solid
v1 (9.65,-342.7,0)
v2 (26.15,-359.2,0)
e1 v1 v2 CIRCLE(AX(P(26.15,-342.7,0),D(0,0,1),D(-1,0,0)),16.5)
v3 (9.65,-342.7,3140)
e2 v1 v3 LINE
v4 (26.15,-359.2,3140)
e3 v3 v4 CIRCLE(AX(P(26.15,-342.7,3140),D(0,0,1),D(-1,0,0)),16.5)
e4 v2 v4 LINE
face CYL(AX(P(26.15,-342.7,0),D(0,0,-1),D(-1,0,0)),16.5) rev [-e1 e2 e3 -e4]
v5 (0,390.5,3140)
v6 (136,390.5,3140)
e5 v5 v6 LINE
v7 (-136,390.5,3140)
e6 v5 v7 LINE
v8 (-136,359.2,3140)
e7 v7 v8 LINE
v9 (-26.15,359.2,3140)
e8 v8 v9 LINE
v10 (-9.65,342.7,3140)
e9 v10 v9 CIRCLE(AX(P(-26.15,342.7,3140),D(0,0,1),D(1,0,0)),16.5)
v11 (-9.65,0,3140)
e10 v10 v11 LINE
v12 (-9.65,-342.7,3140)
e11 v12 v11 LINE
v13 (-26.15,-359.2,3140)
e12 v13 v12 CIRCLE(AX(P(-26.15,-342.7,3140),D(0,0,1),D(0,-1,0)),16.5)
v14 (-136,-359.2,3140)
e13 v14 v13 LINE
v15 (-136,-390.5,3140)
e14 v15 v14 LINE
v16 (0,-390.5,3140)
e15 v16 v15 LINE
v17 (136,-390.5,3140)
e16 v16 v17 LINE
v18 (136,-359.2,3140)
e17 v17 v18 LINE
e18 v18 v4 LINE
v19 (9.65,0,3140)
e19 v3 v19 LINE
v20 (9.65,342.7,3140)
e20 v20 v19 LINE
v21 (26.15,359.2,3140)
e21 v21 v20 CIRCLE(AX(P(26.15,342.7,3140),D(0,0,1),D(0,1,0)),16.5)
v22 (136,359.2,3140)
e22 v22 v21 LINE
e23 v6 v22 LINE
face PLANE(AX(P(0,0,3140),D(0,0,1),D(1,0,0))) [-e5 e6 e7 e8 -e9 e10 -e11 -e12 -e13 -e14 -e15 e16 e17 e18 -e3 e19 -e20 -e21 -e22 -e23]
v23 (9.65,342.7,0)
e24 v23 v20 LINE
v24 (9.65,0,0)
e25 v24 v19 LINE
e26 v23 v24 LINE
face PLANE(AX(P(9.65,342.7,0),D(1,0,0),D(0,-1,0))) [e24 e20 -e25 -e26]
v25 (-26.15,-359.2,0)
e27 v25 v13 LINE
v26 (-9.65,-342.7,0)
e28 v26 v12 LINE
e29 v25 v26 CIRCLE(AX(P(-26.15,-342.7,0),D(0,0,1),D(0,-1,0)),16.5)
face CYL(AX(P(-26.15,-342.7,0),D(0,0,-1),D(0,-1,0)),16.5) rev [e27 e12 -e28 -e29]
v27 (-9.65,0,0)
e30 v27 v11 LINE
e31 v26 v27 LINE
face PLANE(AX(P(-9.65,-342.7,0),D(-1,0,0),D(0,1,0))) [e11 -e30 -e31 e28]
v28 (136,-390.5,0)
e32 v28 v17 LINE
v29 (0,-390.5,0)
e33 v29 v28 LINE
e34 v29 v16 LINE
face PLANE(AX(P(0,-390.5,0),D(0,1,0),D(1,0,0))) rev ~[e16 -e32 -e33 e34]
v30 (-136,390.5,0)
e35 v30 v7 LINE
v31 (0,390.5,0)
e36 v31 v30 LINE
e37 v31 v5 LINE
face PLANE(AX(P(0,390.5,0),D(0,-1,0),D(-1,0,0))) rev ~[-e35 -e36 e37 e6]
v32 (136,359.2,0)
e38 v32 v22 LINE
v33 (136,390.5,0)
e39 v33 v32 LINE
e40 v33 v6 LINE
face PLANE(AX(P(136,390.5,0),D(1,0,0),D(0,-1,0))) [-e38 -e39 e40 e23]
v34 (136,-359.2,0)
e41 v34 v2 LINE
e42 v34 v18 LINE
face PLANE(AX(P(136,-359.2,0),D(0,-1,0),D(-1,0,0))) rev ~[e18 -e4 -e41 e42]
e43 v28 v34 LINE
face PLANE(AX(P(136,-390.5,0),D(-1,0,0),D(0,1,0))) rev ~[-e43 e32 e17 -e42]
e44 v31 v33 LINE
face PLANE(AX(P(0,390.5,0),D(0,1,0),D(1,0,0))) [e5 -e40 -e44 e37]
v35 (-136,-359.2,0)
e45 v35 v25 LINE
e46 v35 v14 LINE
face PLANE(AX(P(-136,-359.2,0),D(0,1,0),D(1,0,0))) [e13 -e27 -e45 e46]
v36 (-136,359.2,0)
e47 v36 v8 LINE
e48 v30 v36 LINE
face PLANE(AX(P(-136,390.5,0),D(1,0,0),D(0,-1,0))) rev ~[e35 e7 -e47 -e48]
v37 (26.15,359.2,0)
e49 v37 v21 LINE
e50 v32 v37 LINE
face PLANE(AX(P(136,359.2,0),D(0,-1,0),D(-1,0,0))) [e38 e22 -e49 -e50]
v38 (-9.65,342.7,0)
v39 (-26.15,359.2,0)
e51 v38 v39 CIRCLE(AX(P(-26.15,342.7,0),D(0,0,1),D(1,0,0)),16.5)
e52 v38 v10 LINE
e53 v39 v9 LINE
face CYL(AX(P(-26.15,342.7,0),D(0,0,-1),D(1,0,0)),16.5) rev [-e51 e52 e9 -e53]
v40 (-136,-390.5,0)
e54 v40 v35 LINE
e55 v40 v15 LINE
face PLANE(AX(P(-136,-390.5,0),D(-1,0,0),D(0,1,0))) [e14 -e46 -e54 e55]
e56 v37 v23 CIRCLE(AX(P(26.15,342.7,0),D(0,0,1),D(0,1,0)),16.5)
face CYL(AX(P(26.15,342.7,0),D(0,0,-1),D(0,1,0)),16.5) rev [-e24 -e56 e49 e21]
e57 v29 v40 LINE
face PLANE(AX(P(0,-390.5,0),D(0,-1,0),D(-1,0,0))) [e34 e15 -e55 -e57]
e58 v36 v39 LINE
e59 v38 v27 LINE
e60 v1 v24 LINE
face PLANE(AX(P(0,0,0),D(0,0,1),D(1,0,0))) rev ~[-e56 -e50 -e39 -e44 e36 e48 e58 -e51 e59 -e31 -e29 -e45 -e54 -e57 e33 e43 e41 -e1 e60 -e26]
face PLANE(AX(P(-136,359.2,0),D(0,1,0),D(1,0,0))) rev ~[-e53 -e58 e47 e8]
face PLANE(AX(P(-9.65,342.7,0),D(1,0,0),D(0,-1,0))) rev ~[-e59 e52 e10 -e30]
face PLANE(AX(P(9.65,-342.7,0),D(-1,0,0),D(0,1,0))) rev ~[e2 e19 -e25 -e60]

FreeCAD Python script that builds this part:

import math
import FreeCAD as App
import Part
import Sketcher

V = App.Vector

doc = App.newDocument("Part")
body = doc.addObject("PartDesign::Body", "Body")

# Sketch on XY plane
sketch1 = body.newObject("Sketcher::SketchObject", "Sketch")
sketch1.AttachmentSupport = (doc.getObject("XY_Plane"), [""])
sketch1.MapMode = "FlatFace"
sketch1.addGeometry([
    Part.LineSegment(V(-136, -359.2, 0), V(-136, -390.5, 0)),  # 0
    Part.LineSegment(V(-136, -390.5, 0), V(136, -390.5, 0)),  # 1
    Part.LineSegment(V(136, -390.5, 0), V(136, -359.2, 0)),  # 2
    Part.LineSegment(V(136, -359.2, 0), V(26.15, -359.2, 0)),  # 3
    Part.ArcOfCircle(Part.Circle(V(26.15, -342.7, 0), V(0, 0, 1), 16.5), math.radians(180), math.radians(270)),  # 4
    Part.LineSegment(V(9.65, -342.7, 0), V(9.65, 342.7, 0)),  # 5
    Part.ArcOfCircle(Part.Circle(V(26.15, 342.7, 0), V(0, 0, 1), 16.5), math.radians(90), math.radians(180)),  # 6
    Part.LineSegment(V(26.15, 359.2, 0), V(136, 359.2, 0)),  # 7
    Part.LineSegment(V(136, 359.2, 0), V(136, 390.5, 0)),  # 8
    Part.LineSegment(V(136, 390.5, 0), V(-136, 390.5, 0)),  # 9
    Part.LineSegment(V(-136, 390.5, 0), V(-136, 359.2, 0)),  # 10
    Part.LineSegment(V(-136, 359.2, 0), V(-26.15, 359.2, 0)),  # 11
    Part.ArcOfCircle(Part.Circle(V(-26.15, 342.7, 0), V(0, 0, 1), 16.5), math.radians(0), math.radians(90)),  # 12
    Part.LineSegment(V(-9.65, 342.7, 0), V(-9.65, -342.7, 0)),  # 13
    Part.ArcOfCircle(Part.Circle(V(-26.15, -342.7, 0), V(0, 0, 1), 16.5), math.radians(-90), math.radians(0)),  # 14
    Part.LineSegment(V(-26.15, -359.2, 0), V(-136, -359.2, 0)),  # 15
], False)
sketch1.addConstraint([
    Sketcher.Constraint("Coincident", 0, 2, 1, 1),
    Sketcher.Constraint("Coincident", 1, 2, 2, 1),
    Sketcher.Constraint("Coincident", 2, 2, 3, 1),
    Sketcher.Constraint("Tangent", 3, 2, 4, 2),
    Sketcher.Constraint("Tangent", 4, 1, 5, 1),
    Sketcher.Constraint("Tangent", 5, 2, 6, 2),
    Sketcher.Constraint("Tangent", 6, 1, 7, 1),
    Sketcher.Constraint("Coincident", 7, 2, 8, 1),
    Sketcher.Constraint("Coincident", 8, 2, 9, 1),
    Sketcher.Constraint("Coincident", 9, 2, 10, 1),
    Sketcher.Constraint("Coincident", 10, 2, 11, 1),
    Sketcher.Constraint("Tangent", 11, 2, 12, 2),
    Sketcher.Constraint("Tangent", 12, 1, 13, 1),
    Sketcher.Constraint("Tangent", 13, 2, 14, 2),
    Sketcher.Constraint("Tangent", 14, 1, 15, 1),
    Sketcher.Constraint("Coincident", 15, 2, 0, 1),
    Sketcher.Constraint("Vertical", 0),
    Sketcher.Constraint("Horizontal", 1),
    Sketcher.Constraint("Vertical", 2),
    Sketcher.Constraint("Horizontal", 3),
    Sketcher.Constraint("Vertical", 5),
    Sketcher.Constraint("Horizontal", 7),
    Sketcher.Constraint("Vertical", 8),
    Sketcher.Constraint("Horizontal", 9),
    Sketcher.Constraint("Vertical", 10),
    Sketcher.Constraint("Horizontal", 11),
    Sketcher.Constraint("Vertical", 13),
    Sketcher.Constraint("Horizontal", 15),
    Sketcher.Constraint("Equal", 4, 6),
    Sketcher.Constraint("Equal", 6, 12),
    Sketcher.Constraint("Equal", 12, 14),
    Sketcher.Constraint("Symmetric", 4, 3, 12, 3, -1, 1),
    Sketcher.Constraint("Symmetric", 0, 2, 8, 2, -1, 1),
    Sketcher.Constraint("Symmetric", 7, 2, 10, 2, -2),
    Sketcher.Constraint("Symmetric", 2, 2, 15, 2, -2),
    Sketcher.Constraint("Radius", 4, 16.5),
    Sketcher.Constraint("DistanceY", 0, 2, 0, 1, 31.3),
    Sketcher.Constraint("DistanceX", 0, 2, -1, 1, 136.0),
    Sketcher.Constraint("DistanceY", 0, 2, -1, 1, 390.5),
    Sketcher.Constraint("DistanceX", -1, 1, 4, 1, 9.65),
])
pad1 = body.newObject("PartDesign::Pad", "Pad")
pad1.Profile = sketch1
pad1.Length = 3140

doc.recompute()
